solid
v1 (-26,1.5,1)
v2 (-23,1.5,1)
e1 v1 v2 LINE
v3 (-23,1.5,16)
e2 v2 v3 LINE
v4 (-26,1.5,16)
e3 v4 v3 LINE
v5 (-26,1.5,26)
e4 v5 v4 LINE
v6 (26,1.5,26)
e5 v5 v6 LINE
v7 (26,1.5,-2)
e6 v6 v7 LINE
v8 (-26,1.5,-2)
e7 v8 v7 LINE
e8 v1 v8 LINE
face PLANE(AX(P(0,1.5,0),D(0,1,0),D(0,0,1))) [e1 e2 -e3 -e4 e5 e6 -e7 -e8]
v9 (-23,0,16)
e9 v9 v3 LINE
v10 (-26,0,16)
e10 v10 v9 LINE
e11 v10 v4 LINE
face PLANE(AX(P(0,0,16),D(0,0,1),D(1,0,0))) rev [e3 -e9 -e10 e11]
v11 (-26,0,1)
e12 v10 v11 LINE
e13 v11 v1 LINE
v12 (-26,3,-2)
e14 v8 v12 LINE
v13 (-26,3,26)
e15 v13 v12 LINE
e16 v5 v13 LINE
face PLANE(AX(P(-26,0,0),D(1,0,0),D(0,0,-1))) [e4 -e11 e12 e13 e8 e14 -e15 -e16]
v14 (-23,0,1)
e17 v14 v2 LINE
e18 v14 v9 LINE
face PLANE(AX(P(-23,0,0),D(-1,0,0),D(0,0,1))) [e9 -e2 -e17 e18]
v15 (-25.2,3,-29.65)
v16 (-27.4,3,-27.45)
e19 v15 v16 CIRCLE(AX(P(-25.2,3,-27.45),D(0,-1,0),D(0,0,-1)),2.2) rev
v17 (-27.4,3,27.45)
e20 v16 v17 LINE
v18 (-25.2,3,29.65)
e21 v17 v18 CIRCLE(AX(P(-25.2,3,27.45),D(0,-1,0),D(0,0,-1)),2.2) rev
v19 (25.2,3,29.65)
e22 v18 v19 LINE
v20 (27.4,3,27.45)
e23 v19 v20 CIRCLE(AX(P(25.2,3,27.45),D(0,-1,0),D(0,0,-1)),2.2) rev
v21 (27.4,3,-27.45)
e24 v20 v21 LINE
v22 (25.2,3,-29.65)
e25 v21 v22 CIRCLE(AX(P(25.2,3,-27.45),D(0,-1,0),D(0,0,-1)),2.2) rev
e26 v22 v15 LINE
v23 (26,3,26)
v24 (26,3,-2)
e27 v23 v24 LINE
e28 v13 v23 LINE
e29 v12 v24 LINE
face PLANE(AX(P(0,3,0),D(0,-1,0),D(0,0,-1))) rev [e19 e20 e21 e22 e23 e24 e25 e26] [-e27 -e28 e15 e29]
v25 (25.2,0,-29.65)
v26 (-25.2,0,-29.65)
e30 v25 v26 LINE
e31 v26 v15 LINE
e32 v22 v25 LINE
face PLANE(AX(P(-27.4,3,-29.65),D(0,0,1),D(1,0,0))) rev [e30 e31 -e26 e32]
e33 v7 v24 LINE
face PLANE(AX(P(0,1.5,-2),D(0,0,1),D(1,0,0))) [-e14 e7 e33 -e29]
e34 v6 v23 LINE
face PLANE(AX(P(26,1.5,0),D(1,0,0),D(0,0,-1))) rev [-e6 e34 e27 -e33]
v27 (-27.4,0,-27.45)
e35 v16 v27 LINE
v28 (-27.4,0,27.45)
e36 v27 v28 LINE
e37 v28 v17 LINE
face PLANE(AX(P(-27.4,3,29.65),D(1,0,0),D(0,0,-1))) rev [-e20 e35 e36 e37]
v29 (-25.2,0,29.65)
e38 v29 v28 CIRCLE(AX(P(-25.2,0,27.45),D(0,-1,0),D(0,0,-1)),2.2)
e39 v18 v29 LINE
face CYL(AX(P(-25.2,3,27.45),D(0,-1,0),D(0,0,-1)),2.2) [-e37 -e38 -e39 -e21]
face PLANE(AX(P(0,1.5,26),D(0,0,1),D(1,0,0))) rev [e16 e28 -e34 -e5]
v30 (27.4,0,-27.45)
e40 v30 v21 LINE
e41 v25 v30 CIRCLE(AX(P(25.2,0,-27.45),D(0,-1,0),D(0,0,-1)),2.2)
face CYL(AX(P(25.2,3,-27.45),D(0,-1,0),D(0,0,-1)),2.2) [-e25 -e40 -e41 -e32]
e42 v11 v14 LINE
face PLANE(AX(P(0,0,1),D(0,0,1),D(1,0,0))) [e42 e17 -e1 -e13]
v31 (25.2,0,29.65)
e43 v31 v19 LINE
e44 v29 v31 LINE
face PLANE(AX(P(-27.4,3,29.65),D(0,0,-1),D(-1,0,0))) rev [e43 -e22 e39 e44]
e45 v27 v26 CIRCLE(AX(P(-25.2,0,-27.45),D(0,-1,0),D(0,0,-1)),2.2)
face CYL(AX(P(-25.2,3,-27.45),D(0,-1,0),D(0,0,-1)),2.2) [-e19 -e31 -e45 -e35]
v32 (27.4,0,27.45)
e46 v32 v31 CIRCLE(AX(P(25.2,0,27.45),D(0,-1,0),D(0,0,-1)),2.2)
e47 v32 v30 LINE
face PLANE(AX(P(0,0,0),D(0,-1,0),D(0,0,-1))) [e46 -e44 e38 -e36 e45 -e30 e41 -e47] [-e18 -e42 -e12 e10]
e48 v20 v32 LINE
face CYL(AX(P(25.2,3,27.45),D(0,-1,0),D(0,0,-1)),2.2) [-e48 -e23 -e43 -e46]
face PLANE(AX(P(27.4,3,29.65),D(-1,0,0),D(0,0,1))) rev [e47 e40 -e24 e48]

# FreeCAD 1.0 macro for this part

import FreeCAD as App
import Part
import Sketcher

V = App.Vector


def edges_at(feature, points):
    """Names of the edges that pass closest to the given points."""
    edges = feature.Shape.Edges
    near = lambda p: min(range(len(edges)), key=lambda i: edges[i].distToShape(Part.Vertex(*p))[0])
    return sorted({f"Edge{near(p) + 1}" for p in points})

doc = App.newDocument("Part")
params = doc.addObject("Spreadsheet::Sheet", "Params")
for row, (alias, value) in enumerate([
    ("sketch1_width", "54.8 mm"),
    ("sketch1_height", "59.3 mm"),
    ("pad1_length", "3 mm"),
    ("fillet_radius", "2.2 mm"),
    ("sketch2_width", "3 mm"),
    ("sketch2_height", "15 mm"),
    ("sketch3_width", "52 mm"),
    ("sketch3_width2", "3 mm"),
    ("sketch3_height", "10 mm"),
    ("sketch3_height2", "28 mm"),
    ("pocket2_length", "1.5 mm"),
], start=1):
    params.set(f"A{row}", alias)
    params.set(f"B{row}", "=" + value)
    params.setAlias(f"B{row}", alias)

body = doc.addObject("PartDesign::Body", "Body")

# Sketch on XZ plane
sketch1 = body.newObject("Sketcher::SketchObject", "Sketch")
sketch1.AttachmentSupport = (doc.getObject("XZ_Plane"), [""])
sketch1.MapMode = "FlatFace"
sketch1.addGeometry(Part.LineSegment(V(-27, -30, 0), V(-27, 30, 0)), False)
sketch1.addGeometry(Part.LineSegment(V(-27, 30, 0), V(27, 30, 0)), False)
sketch1.addGeometry(Part.LineSegment(V(27, 30, 0), V(27, -30, 0)), False)
sketch1.addGeometry(Part.LineSegment(V(27, -30, 0), V(-27, -30, 0)), False)
sketch1.addConstraint(Sketcher.Constraint("Coincident", 0, 2, 1, 1))
sketch1.addConstraint(Sketcher.Constraint("Coincident", 1, 2, 2, 1))
sketch1.addConstraint(Sketcher.Constraint("Coincident", 2, 2, 3, 1))
sketch1.addConstraint(Sketcher.Constraint("Coincident", 3, 2, 0, 1))
sketch1.addConstraint(Sketcher.Constraint("Vertical", 0))
sketch1.addConstraint(Sketcher.Constraint("Horizontal", 1))
sketch1.addConstraint(Sketcher.Constraint("Vertical", 2))
sketch1.addConstraint(Sketcher.Constraint("Horizontal", 3))
sketch1.addConstraint(Sketcher.Constraint("Symmetric", 0, 2, 2, 2, -1, 1))
sketch1.addConstraint(Sketcher.Constraint("DistanceX", 1, 1, 1, 2, 54.8))
sketch1.addConstraint(Sketcher.Constraint("DistanceY", 0, 1, 0, 2, 59.3))
sketch1.setExpression("Constraints[9]", "Params.sketch1_width")
sketch1.setExpression("Constraints[10]", "Params.sketch1_height")
pad1 = body.newObject("PartDesign::Pad", "Pad")
pad1.Profile = sketch1
pad1.setExpression("Length", "Params.pad1_length")
pad1.Reversed = True
doc.recompute()

fillet = body.newObject("PartDesign::Fillet", "Fillet")
fillet.Base = (pad1, edges_at(pad1, [
    (27.4, 1.5, 29.65),
    (-27.4, 1.5, 29.65),
    (-27.4, 1.5, -29.65),
    (27.4, 1.5, -29.65),
]))
fillet.setExpression("Radius", "Params.fillet_radius")

# Sketch on XZ plane
sketch2 = body.newObject("Sketcher::SketchObject", "Sketch001")
sketch2.AttachmentSupport = (doc.getObject("XZ_Plane"), [""])
sketch2.MapMode = "FlatFace"
sketch2.AttachmentOffset = App.Placement(V(0, 0, -3), App.Rotation())
sketch2.addGeometry(Part.LineSegment(V(-26, 1, 0), V(-26, 16, 0)), False)
sketch2.addGeometry(Part.LineSegment(V(-26, 16, 0), V(-23, 16, 0)), False)
sketch2.addGeometry(Part.LineSegment(V(-23, 16, 0), V(-23, 1, 0)), False)
sketch2.addGeometry(Part.LineSegment(V(-23, 1, 0), V(-26, 1, 0)), False)
sketch2.addConstraint(Sketcher.Constraint("Coincident", 0, 2, 1, 1))
sketch2.addConstraint(Sketcher.Constraint("Coincident", 1, 2, 2, 1))
sketch2.addConstraint(Sketcher.Constraint("Coincident", 2, 2, 3, 1))
sketch2.addConstraint(Sketcher.Constraint("Coincident", 3, 2, 0, 1))
sketch2.addConstraint(Sketcher.Constraint("Vertical", 0))
sketch2.addConstraint(Sketcher.Constraint("Horizontal", 1))
sketch2.addConstraint(Sketcher.Constraint("Vertical", 2))
sketch2.addConstraint(Sketcher.Constraint("Horizontal", 3))
sketch2.addConstraint(Sketcher.Constraint("DistanceX", 1, 1, 1, 2, 3.0))
sketch2.addConstraint(Sketcher.Constraint("DistanceY", 0, 1, 0, 2, 15.0))
sketch2.addConstraint(Sketcher.Constraint("DistanceX", 0, 2, -1, 1, 26.0))
sketch2.addConstraint(Sketcher.Constraint("DistanceY", -1, 1, 0, 2, 16.0))
sketch2.setExpression("Constraints[8]", "Params.sketch2_width")
sketch2.setExpression("Constraints[9]", "Params.sketch2_height")
pocket1 = body.newObject("PartDesign::Pocket", "Pocket")
pocket1.Profile = sketch2
pocket1.Type = "ThroughAll"
pocket1.Reversed = True

# Sketch on XZ plane
sketch3 = body.newObject("Sketcher::SketchObject", "Sketch002")
sketch3.AttachmentSupport = (doc.getObject("XZ_Plane"), [""])
sketch3.MapMode = "FlatFace"
sketch3.AttachmentOffset = App.Placement(V(0, 0, -3), App.Rotation())
sketch3.addGeometry(Part.LineSegment(V(-26, 16, 0), V(-26, 26, 0)), False)
sketch3.addGeometry(Part.LineSegment(V(-26, 26, 0), V(26, 26, 0)), False)
sketch3.addGeometry(Part.LineSegment(V(26, 26, 0), V(26, -2, 0)), False)
sketch3.addGeometry(Part.LineSegment(V(26, -2, 0), V(-26, -2, 0)), False)
sketch3.addGeometry(Part.LineSegment(V(-26, -2, 0), V(-26, 1, 0)), False)
sketch3.addGeometry(Part.LineSegment(V(-26, 1, 0), V(-23, 1, 0)), False)
sketch3.addGeometry(Part.LineSegment(V(-23, 1, 0), V(-23, 16, 0)), False)
sketch3.addGeometry(Part.LineSegment(V(-23, 16, 0), V(-26, 16, 0)), False)
sketch3.addConstraint(Sketcher.Constraint("Coincident", 0, 2, 1, 1))
sketch3.addConstraint(Sketcher.Constraint("Coincident", 1, 2, 2, 1))
sketch3.addConstraint(Sketcher.Constraint("Coincident", 2, 2, 3, 1))
sketch3.addConstraint(Sketcher.Constraint("Coincident", 3, 2, 4, 1))
sketch3.addConstraint(Sketcher.Constraint("Coincident", 4, 2, 5, 1))
sketch3.addConstraint(Sketcher.Constraint("Coincident", 5, 2, 6, 1))
sketch3.addConstraint(Sketcher.Constraint("Coincident", 6, 2, 7, 1))
sketch3.addConstraint(Sketcher.Constraint("Coincident", 7, 2, 0, 1))
sketch3.addConstraint(Sketcher.Constraint("Vertical", 0))
sketch3.addConstraint(Sketcher.Constraint("Horizontal", 1))
sketch3.addConstraint(Sketcher.Constraint("Vertical", 2))
sketch3.addConstraint(Sketcher.Constraint("Horizontal", 3))
sketch3.addConstraint(Sketcher.Constraint("Vertical", 4))
sketch3.addConstraint(Sketcher.Constraint("Horizontal", 5))
sketch3.addConstraint(Sketcher.Constraint("Vertical", 6))
sketch3.addConstraint(Sketcher.Constraint("Horizontal", 7))
sketch3.addConstraint(Sketcher.Constraint("Vertical", 0, 2, 3, 2))
sketch3.addConstraint(Sketcher.Constraint("Equal", 7, 4))
sketch3.addConstraint(Sketcher.Constraint("DistanceX", 1, 1, 1, 2, 52.0))
sketch3.addConstraint(Sketcher.Constraint("DistanceX", 5, 1, 5, 2, 3.0))
sketch3.addConstraint(Sketcher.Constraint("DistanceY", 0, 1, 0, 2, 10.0))
sketch3.addConstraint(Sketcher.Constraint("DistanceY", 2, 2, 2, 1, 28.0))
sketch3.addConstraint(Sketcher.Constraint("DistanceX", 0, 2, -1, 1, 26.0))
sketch3.addConstraint(Sketcher.Constraint("DistanceY", -1, 1, 0, 2, 26.0))
sketch3.setExpression("Constraints[18]", "Params.sketch3_width")
sketch3.setExpression("Constraints[19]", "Params.sketch3_width2")
sketch3.setExpression("Constraints[20]", "Params.sketch3_height")
sketch3.setExpression("Constraints[21]", "Params.sketch3_height2")
pocket2 = body.newObject("PartDesign::Pocket", "Pocket001")
pocket2.Profile = sketch3
pocket2.setExpression("Length", "Params.pocket2_length")
pocket2.Reversed = True

doc.recompute()
